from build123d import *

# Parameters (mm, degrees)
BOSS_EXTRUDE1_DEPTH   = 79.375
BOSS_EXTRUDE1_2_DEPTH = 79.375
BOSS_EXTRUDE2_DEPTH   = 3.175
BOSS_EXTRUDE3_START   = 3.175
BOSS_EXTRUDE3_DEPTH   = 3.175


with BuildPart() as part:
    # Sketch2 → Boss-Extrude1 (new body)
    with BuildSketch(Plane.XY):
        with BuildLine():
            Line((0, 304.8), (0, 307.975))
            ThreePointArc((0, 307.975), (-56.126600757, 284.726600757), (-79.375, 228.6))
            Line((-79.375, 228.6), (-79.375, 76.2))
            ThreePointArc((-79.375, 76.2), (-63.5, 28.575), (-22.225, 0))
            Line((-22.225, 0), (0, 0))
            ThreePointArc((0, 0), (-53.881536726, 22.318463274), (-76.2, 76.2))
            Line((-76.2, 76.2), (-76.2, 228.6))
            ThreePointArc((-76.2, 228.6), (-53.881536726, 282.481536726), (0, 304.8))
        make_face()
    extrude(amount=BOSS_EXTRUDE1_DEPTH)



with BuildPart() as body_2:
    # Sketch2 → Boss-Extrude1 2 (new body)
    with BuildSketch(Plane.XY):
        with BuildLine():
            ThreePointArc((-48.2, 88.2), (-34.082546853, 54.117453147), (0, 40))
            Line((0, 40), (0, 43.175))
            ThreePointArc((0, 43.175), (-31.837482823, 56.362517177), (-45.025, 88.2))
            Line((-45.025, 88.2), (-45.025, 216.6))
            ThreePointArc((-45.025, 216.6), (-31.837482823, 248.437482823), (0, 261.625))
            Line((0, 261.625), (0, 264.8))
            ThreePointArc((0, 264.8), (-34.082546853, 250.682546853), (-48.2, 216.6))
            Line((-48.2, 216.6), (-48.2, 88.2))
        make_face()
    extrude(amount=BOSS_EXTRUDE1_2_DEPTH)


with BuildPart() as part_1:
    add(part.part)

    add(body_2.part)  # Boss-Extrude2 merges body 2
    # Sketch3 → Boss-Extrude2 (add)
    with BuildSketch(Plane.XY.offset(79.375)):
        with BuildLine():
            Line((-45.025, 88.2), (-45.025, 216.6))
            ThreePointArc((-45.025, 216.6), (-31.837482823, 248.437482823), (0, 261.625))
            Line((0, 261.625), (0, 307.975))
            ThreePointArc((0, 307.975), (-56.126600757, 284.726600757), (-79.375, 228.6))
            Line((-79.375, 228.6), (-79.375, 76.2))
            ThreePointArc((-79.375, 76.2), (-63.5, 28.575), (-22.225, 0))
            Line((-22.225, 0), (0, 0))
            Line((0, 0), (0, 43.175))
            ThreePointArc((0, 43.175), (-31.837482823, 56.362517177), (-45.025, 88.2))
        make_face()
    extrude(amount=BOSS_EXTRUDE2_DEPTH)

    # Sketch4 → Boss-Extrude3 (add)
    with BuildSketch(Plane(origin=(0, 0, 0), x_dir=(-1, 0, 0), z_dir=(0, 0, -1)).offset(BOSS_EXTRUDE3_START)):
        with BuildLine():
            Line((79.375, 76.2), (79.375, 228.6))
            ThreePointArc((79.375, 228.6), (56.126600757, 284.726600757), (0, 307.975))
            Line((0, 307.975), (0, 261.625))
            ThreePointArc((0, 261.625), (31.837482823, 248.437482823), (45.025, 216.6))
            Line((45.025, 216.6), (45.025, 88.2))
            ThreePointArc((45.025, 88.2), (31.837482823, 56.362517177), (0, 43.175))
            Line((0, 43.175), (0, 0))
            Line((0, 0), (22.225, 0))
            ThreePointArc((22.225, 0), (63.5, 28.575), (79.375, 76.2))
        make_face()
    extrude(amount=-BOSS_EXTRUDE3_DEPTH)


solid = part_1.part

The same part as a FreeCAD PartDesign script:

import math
import FreeCAD as App
import Part
import Sketcher
Q = App.Units.Quantity

doc = App.newDocument("Part")
body = doc.addObject("PartDesign::Body", "Body")

# Sketch on XY plane
sketch1 = body.newObject("Sketcher::SketchObject", "Sketch")
sketch1.AttachmentSupport = (doc.getObject("XY_Plane"), [""])
sketch1.MapMode = "FlatFace"
sketch1.addGeometry(Part.LineSegment(App.Vector(0, 304.8, 0), App.Vector(0, 308, 0)), False)
sketch1.addGeometry(Part.ArcOfCircle(Part.Circle(App.Vector(0, 228.6, 0), App.Vector(0, 0, 1), 79.4), math.radians(90), math.radians(180)), False)
sketch1.addGeometry(Part.LineSegment(App.Vector(-79.4, 228.6, 0), App.Vector(-79.4, 76.2, 0)), False)
sketch1.addGeometry(Part.ArcOfCircle(Part.Circle(App.Vector(0, 76.2, 0), App.Vector(0, 0, 1), 79.4), math.radians(180), math.radians(254)), False)
sketch1.addGeometry(Part.LineSegment(App.Vector(-22.2, 0, 0), App.Vector(0, 0, 0)), False)
sketch1.addGeometry(Part.ArcOfCircle(Part.Circle(App.Vector(0, 76.2, 0), App.Vector(0, 0, 1), 76.2), math.radians(-180), math.radians(-90)), False)
sketch1.addGeometry(Part.LineSegment(App.Vector(-76.2, 76.2, 0), App.Vector(-76.2, 228.6, 0)), False)
sketch1.addGeometry(Part.ArcOfCircle(Part.Circle(App.Vector(0, 228.6, 0), App.Vector(0, 0, 1), 76.2), math.radians(90), math.radians(180)), False)
sketch1.addConstraint(Sketcher.Constraint("Coincident", 0, 2, 1, 1))
sketch1.addConstraint(Sketcher.Constraint("Tangent", 1, 2, 2, 1))
sketch1.addConstraint(Sketcher.Constraint("Tangent", 2, 2, 3, 1))
sketch1.addConstraint(Sketcher.Constraint("Coincident", 3, 2, 4, 1))
sketch1.addConstraint(Sketcher.Constraint("Tangent", 4, 2, 5, 2))
sketch1.addConstraint(Sketcher.Constraint("Tangent", 5, 1, 6, 1))
sketch1.addConstraint(Sketcher.Constraint("Tangent", 6, 2, 7, 2))
sketch1.addConstraint(Sketcher.Constraint("Coincident", 7, 1, 0, 1))
sketch1.addConstraint(Sketcher.Constraint("Vertical", 0))
sketch1.addConstraint(Sketcher.Constraint("Vertical", 2))
sketch1.addConstraint(Sketcher.Constraint("Horizontal", 4))
sketch1.addConstraint(Sketcher.Constraint("Vertical", 6))
sketch1.addConstraint(Sketcher.Constraint("Coincident", 4, 2, -1, 1))
sketch1.addConstraint(Sketcher.Constraint("Coincident", 5, 3, 3, 3))
sketch1.addConstraint(Sketcher.Constraint("Coincident", 7, 3, 1, 3))
sketch1.addConstraint(Sketcher.Constraint("Equal", 1, 3))
sketch1.addConstraint(Sketcher.Constraint("PointOnObject", 0, 2, -2))
sketch1.addConstraint(Sketcher.Constraint("Radius", 5, Q("3 in")))
sketch1.addConstraint(Sketcher.Constraint("DistanceY", 2, 2, 2, 1, Q("6 in")))
sketch1.addConstraint(Sketcher.Constraint("Radius", 1, Q("3.125 in")))
pad1 = body.newObject("PartDesign::Pad", "Pad")
pad1.Profile = sketch1
pad1.Length = Q("3.125 in")
body2 = doc.addObject("PartDesign::Body", "Body001")

# Sketch on XY plane
sketch2 = body2.newObject("Sketcher::SketchObject", "Sketch001")
sketch2.AttachmentSupport = (doc.getObject("XY_Plane001"), [""])
sketch2.MapMode = "FlatFace"
sketch2.addGeometry(Part.ArcOfCircle(Part.Circle(App.Vector(0, 88.2, 0), App.Vector(0, 0, 1), 48.2), math.radians(-180), math.radians(-90)), False)
sketch2.addGeometry(Part.LineSegment(App.Vector(0, 40, 0), App.Vector(0, 43.2, 0)), False)
sketch2.addGeometry(Part.ArcOfCircle(Part.Circle(App.Vector(0, 88.2, 0), App.Vector(0, 0, 1), 45), math.radians(180), math.radians(270)), False)
sketch2.addGeometry(Part.LineSegment(App.Vector(-45, 88.2, 0), App.Vector(-45, 216.6, 0)), False)
sketch2.addGeometry(Part.ArcOfCircle(Part.Circle(App.Vector(0, 216.6, 0), App.Vector(0, 0, 1), 45), math.radians(90), math.radians(180)), False)
sketch2.addGeometry(Part.LineSegment(App.Vector(0, 261.6, 0), App.Vector(0, 264.8, 0)), False)
sketch2.addGeometry(Part.ArcOfCircle(Part.Circle(App.Vector(0, 216.6, 0), App.Vector(0, 0, 1), 48.2), math.radians(90), math.radians(180)), False)
sketch2.addGeometry(Part.LineSegment(App.Vector(-48.2, 216.6, 0), App.Vector(-48.2, 88.2, 0)), False)
sketch2.addConstraint(Sketcher.Constraint("Coincident", 0, 2, 1, 1))
sketch2.addConstraint(Sketcher.Constraint("Coincident", 1, 2, 2, 2))
sketch2.addConstraint(Sketcher.Constraint("Tangent", 2, 1, 3, 1))
sketch2.addConstraint(Sketcher.Constraint("Tangent", 3, 2, 4, 2))
sketch2.addConstraint(Sketcher.Constraint("Coincident", 4, 1, 5, 1))
sketch2.addConstraint(Sketcher.Constraint("Coincident", 5, 2, 6, 1))
sketch2.addConstraint(Sketcher.Constraint("Tangent", 6, 2, 7, 1))
sketch2.addConstraint(Sketcher.Constraint("Tangent", 7, 2, 0, 1))
sketch2.addConstraint(Sketcher.Constraint("Vertical", 1))
sketch2.addConstraint(Sketcher.Constraint("Vertical", 3))
sketch2.addConstraint(Sketcher.Constraint("Vertical", 5))
sketch2.addConstraint(Sketcher.Constraint("Vertical", 7))
sketch2.addConstraint(Sketcher.Constraint("Coincident", 2, 3, 0, 3))
sketch2.addConstraint(Sketcher.Constraint("Coincident", 6, 3, 4, 3))
sketch2.addConstraint(Sketcher.Constraint("Equal", 2, 4))
sketch2.addConstraint(Sketcher.Constraint("PointOnObject", 0, 3, -2))
sketch2.addConstraint(Sketcher.Constraint("PointOnObject", 0, 2, -2))
sketch2.addConstraint(Sketcher.Constraint("PointOnObject", 4, 1, -2))
sketch2.addConstraint(Sketcher.Constraint("DistanceY", 1, 1, 1, 2, Q("0.125 in")))
sketch2.addConstraint(Sketcher.Constraint("Radius", 0, 48.2))
sketch2.addConstraint(Sketcher.Constraint("DistanceY", 3, 1, 3, 2, 128.4))
sketch2.addConstraint(Sketcher.Constraint("DistanceY", -1, 1, 0, 3, 88.2))
pad2 = body2.newObject("PartDesign::Pad", "Pad001")
pad2.Profile = sketch2
pad2.Length = Q("3.125 in")
body.AllowCompound = True
doc.recompute()

boolean = body.newObject("PartDesign::Boolean", "Boolean")
boolean.Type = "Fuse"
boolean.addObjects([body2])

# Sketch on XY plane
sketch3 = body.newObject("Sketcher::SketchObject", "Sketch002")
sketch3.AttachmentSupport = (doc.getObject("XY_Plane"), [""])
sketch3.MapMode = "FlatFace"
sketch3.AttachmentOffset = App.Placement(App.Vector(0, 0, 3.125 * 25.4), App.Rotation())
sketch3.addGeometry(Part.LineSegment(App.Vector(-45, 88, 0), App.Vector(-45, 217, 0)), False)
sketch3.addGeometry(Part.ArcOfCircle(Part.Circle(App.Vector(0, 217, 0), App.Vector(0, 0, 1), 45), math.radians(90), math.radians(180)), False)
sketch3.addGeometry(Part.LineSegment(App.Vector(0, 262, 0), App.Vector(0, 308, 0)), False)
sketch3.addGeometry(Part.ArcOfCircle(Part.Circle(App.Vector(0, 229, 0), App.Vector(0, 0, 1), 79), math.radians(90), math.radians(180)), False)
sketch3.addGeometry(Part.LineSegment(App.Vector(-79, 229, 0), App.Vector(-79, 76, 0)), False)
sketch3.addGeometry(Part.ArcOfCircle(Part.Circle(App.Vector(0, 76, 0), App.Vector(0, 0, 1), 79), math.radians(180), math.radians(254)), False)
sketch3.addGeometry(Part.LineSegment(App.Vector(-22, 0, 0), App.Vector(0, 0, 0)), False)
sketch3.addGeometry(Part.LineSegment(App.Vector(0, 0, 0), App.Vector(0, 43, 0)), False)
sketch3.addGeometry(Part.ArcOfCircle(Part.Circle(App.Vector(0, 88, 0), App.Vector(0, 0, 1), 45), math.radians(180), math.radians(270)), False)
sketch3.addConstraint(Sketcher.Constraint("Tangent", 0, 2, 1, 2))
sketch3.addConstraint(Sketcher.Constraint("Coincident", 1, 1, 2, 1))
sketch3.addConstraint(Sketcher.Constraint("Coincident", 2, 2, 3, 1))
sketch3.addConstraint(Sketcher.Constraint("Tangent", 3, 2, 4, 1))
sketch3.addConstraint(Sketcher.Constraint("Tangent", 4, 2, 5, 1))
sketch3.addConstraint(Sketcher.Constraint("Coincident", 5, 2, 6, 1))
sketch3.addConstraint(Sketcher.Constraint("Coincident", 6, 2, 7, 1))
sketch3.addConstraint(Sketcher.Constraint("Coincident", 7, 2, 8, 2))
sketch3.addConstraint(Sketcher.Constraint("Tangent", 8, 1, 0, 1))
sketch3.addConstraint(Sketcher.Constraint("Vertical", 0))
sketch3.addConstraint(Sketcher.Constraint("Vertical", 2))
sketch3.addConstraint(Sketcher.Constraint("Vertical", 4))
sketch3.addConstraint(Sketcher.Constraint("Horizontal", 6))
sketch3.addConstraint(Sketcher.Constraint("Vertical", 7))
sketch3.addConstraint(Sketcher.Constraint("Coincident", 6, 2, -1, 1))
sketch3.addConstraint(Sketcher.Constraint("Equal", 3, 5))
sketch3.addConstraint(Sketcher.Constraint("Equal", 1, 8))
sketch3.addConstraint(Sketcher.Constraint("PointOnObject", 1, 3, -2))
sketch3.addConstraint(Sketcher.Constraint("PointOnObject", 3, 3, -2))
sketch3.addConstraint(Sketcher.Constraint("PointOnObject", 1, 1, -2))
sketch3.addConstraint(Sketcher.Constraint("DistanceY", 4, 2, 4, 1, Q("6 in")))
sketch3.addConstraint(Sketcher.Constraint("DistanceY", -1, 1, 3, 3, Q("9 in")))
sketch3.addConstraint(Sketcher.Constraint("Radius", 3, Q("3.125 in")))
sketch3.addConstraint(Sketcher.Constraint("Radius", 1, 45.025))
sketch3.addConstraint(Sketcher.Constraint("DistanceY", 0, 1, 0, 2, 128.4))
sketch3.addConstraint(Sketcher.Constraint("DistanceY", 2, 1, 2, 2, 46.35))
pad3 = body.newObject("PartDesign::Pad", "Pad002")
pad3.Profile = sketch3
pad3.Length = Q("0.125 in")

# Sketch on XY plane
sketch4 = body.newObject("Sketcher::SketchObject", "Sketch003")
sketch4.AttachmentSupport = (doc.getObject("XY_Plane"), [""])
sketch4.MapMode = "FlatFace"
sketch4.AttachmentOffset = App.Placement(App.Vector(0, 0, -0.125 * 25.4), App.Rotation())
sketch4.addGeometry(Part.LineSegment(App.Vector(-79, 76, 0), App.Vector(-79, 229, 0)), False)
sketch4.addGeometry(Part.ArcOfCircle(Part.Circle(App.Vector(0, 229, 0), App.Vector(0, 0, 1), 79), math.radians(90), math.radians(180)), False)
sketch4.addGeometry(Part.LineSegment(App.Vector(0, 308, 0), App.Vector(0, 262, 0)), False)
sketch4.addGeometry(Part.ArcOfCircle(Part.Circle(App.Vector(0, 217, 0), App.Vector(0, 0, 1), 45), math.radians(90), math.radians(180)), False)
sketch4.addGeometry(Part.LineSegment(App.Vector(-45, 217, 0), App.Vector(-45, 88, 0)), False)
sketch4.addGeometry(Part.ArcOfCircle(Part.Circle(App.Vector(0, 88, 0), App.Vector(0, 0, 1), 45), math.radians(180), math.radians(270)), False)
sketch4.addGeometry(Part.LineSegment(App.Vector(0, 43, 0), App.Vector(0, 0, 0)), False)
sketch4.addGeometry(Part.LineSegment(App.Vector(0, 0, 0), App.Vector(-22, 0, 0)), False)
sketch4.addGeometry(Part.ArcOfCircle(Part.Circle(App.Vector(0, 76, 0), App.Vector(0, 0, 1), 79), math.radians(180), math.radians(254)), False)
sketch4.addConstraint(Sketcher.Constraint("Tangent", 0, 2, 1, 2))
sketch4.addConstraint(Sketcher.Constraint("Coincident", 1, 1, 2, 1))
sketch4.addConstraint(Sketcher.Constraint("Coincident", 2, 2, 3, 1))
sketch4.addConstraint(Sketcher.Constraint("Tangent", 3, 2, 4, 1))
sketch4.addConstraint(Sketcher.Constraint("Tangent", 4, 2, 5, 1))
sketch4.addConstraint(Sketcher.Constraint("Coincident", 5, 2, 6, 1))
sketch4.addConstraint(Sketcher.Constraint("Coincident", 6, 2, 7, 1))
sketch4.addConstraint(Sketcher.Constraint("Coincident", 7, 2, 8, 2))
sketch4.addConstraint(Sketcher.Constraint("Tangent", 8, 1, 0, 1))
sketch4.addConstraint(Sketcher.Constraint("Vertical", 0))
sketch4.addConstraint(Sketcher.Constraint("Vertical", 2))
sketch4.addConstraint(Sketcher.Constraint("Vertical", 4))
sketch4.addConstraint(Sketcher.Constraint("Vertical", 6))
sketch4.addConstraint(Sketcher.Constraint("Horizontal", 7))
sketch4.addConstraint(Sketcher.Constraint("Coincident", 6, 2, -1, 1))
sketch4.addConstraint(Sketcher.Constraint("Equal", 3, 5))
sketch4.addConstraint(Sketcher.Constraint("Equal", 1, 8))
sketch4.addConstraint(Sketcher.Constraint("PointOnObject", 1, 3, -2))
sketch4.addConstraint(Sketcher.Constraint("PointOnObject", 3, 3, -2))
sketch4.addConstraint(Sketcher.Constraint("PointOnObject", 1, 1, -2))
sketch4.addConstraint(Sketcher.Constraint("DistanceY", 0, 1, 0, 2, Q("6 in")))
sketch4.addConstraint(Sketcher.Constraint("DistanceY", -1, 1, 1, 3, Q("9 in")))
sketch4.addConstraint(Sketcher.Constraint("Radius", 1, Q("3.125 in")))
sketch4.addConstraint(Sketcher.Constraint("Radius", 3, 45.025))
sketch4.addConstraint(Sketcher.Constraint("DistanceY", 2, 2, 2, 1, 46.35))
sketch4.addConstraint(Sketcher.Constraint("DistanceY", 4, 2, 4, 1, 128.4))
pad4 = body.newObject("PartDesign::Pad", "Pad003")
pad4.Profile = sketch4
pad4.Length = Q("0.125 in")

doc.recompute()
